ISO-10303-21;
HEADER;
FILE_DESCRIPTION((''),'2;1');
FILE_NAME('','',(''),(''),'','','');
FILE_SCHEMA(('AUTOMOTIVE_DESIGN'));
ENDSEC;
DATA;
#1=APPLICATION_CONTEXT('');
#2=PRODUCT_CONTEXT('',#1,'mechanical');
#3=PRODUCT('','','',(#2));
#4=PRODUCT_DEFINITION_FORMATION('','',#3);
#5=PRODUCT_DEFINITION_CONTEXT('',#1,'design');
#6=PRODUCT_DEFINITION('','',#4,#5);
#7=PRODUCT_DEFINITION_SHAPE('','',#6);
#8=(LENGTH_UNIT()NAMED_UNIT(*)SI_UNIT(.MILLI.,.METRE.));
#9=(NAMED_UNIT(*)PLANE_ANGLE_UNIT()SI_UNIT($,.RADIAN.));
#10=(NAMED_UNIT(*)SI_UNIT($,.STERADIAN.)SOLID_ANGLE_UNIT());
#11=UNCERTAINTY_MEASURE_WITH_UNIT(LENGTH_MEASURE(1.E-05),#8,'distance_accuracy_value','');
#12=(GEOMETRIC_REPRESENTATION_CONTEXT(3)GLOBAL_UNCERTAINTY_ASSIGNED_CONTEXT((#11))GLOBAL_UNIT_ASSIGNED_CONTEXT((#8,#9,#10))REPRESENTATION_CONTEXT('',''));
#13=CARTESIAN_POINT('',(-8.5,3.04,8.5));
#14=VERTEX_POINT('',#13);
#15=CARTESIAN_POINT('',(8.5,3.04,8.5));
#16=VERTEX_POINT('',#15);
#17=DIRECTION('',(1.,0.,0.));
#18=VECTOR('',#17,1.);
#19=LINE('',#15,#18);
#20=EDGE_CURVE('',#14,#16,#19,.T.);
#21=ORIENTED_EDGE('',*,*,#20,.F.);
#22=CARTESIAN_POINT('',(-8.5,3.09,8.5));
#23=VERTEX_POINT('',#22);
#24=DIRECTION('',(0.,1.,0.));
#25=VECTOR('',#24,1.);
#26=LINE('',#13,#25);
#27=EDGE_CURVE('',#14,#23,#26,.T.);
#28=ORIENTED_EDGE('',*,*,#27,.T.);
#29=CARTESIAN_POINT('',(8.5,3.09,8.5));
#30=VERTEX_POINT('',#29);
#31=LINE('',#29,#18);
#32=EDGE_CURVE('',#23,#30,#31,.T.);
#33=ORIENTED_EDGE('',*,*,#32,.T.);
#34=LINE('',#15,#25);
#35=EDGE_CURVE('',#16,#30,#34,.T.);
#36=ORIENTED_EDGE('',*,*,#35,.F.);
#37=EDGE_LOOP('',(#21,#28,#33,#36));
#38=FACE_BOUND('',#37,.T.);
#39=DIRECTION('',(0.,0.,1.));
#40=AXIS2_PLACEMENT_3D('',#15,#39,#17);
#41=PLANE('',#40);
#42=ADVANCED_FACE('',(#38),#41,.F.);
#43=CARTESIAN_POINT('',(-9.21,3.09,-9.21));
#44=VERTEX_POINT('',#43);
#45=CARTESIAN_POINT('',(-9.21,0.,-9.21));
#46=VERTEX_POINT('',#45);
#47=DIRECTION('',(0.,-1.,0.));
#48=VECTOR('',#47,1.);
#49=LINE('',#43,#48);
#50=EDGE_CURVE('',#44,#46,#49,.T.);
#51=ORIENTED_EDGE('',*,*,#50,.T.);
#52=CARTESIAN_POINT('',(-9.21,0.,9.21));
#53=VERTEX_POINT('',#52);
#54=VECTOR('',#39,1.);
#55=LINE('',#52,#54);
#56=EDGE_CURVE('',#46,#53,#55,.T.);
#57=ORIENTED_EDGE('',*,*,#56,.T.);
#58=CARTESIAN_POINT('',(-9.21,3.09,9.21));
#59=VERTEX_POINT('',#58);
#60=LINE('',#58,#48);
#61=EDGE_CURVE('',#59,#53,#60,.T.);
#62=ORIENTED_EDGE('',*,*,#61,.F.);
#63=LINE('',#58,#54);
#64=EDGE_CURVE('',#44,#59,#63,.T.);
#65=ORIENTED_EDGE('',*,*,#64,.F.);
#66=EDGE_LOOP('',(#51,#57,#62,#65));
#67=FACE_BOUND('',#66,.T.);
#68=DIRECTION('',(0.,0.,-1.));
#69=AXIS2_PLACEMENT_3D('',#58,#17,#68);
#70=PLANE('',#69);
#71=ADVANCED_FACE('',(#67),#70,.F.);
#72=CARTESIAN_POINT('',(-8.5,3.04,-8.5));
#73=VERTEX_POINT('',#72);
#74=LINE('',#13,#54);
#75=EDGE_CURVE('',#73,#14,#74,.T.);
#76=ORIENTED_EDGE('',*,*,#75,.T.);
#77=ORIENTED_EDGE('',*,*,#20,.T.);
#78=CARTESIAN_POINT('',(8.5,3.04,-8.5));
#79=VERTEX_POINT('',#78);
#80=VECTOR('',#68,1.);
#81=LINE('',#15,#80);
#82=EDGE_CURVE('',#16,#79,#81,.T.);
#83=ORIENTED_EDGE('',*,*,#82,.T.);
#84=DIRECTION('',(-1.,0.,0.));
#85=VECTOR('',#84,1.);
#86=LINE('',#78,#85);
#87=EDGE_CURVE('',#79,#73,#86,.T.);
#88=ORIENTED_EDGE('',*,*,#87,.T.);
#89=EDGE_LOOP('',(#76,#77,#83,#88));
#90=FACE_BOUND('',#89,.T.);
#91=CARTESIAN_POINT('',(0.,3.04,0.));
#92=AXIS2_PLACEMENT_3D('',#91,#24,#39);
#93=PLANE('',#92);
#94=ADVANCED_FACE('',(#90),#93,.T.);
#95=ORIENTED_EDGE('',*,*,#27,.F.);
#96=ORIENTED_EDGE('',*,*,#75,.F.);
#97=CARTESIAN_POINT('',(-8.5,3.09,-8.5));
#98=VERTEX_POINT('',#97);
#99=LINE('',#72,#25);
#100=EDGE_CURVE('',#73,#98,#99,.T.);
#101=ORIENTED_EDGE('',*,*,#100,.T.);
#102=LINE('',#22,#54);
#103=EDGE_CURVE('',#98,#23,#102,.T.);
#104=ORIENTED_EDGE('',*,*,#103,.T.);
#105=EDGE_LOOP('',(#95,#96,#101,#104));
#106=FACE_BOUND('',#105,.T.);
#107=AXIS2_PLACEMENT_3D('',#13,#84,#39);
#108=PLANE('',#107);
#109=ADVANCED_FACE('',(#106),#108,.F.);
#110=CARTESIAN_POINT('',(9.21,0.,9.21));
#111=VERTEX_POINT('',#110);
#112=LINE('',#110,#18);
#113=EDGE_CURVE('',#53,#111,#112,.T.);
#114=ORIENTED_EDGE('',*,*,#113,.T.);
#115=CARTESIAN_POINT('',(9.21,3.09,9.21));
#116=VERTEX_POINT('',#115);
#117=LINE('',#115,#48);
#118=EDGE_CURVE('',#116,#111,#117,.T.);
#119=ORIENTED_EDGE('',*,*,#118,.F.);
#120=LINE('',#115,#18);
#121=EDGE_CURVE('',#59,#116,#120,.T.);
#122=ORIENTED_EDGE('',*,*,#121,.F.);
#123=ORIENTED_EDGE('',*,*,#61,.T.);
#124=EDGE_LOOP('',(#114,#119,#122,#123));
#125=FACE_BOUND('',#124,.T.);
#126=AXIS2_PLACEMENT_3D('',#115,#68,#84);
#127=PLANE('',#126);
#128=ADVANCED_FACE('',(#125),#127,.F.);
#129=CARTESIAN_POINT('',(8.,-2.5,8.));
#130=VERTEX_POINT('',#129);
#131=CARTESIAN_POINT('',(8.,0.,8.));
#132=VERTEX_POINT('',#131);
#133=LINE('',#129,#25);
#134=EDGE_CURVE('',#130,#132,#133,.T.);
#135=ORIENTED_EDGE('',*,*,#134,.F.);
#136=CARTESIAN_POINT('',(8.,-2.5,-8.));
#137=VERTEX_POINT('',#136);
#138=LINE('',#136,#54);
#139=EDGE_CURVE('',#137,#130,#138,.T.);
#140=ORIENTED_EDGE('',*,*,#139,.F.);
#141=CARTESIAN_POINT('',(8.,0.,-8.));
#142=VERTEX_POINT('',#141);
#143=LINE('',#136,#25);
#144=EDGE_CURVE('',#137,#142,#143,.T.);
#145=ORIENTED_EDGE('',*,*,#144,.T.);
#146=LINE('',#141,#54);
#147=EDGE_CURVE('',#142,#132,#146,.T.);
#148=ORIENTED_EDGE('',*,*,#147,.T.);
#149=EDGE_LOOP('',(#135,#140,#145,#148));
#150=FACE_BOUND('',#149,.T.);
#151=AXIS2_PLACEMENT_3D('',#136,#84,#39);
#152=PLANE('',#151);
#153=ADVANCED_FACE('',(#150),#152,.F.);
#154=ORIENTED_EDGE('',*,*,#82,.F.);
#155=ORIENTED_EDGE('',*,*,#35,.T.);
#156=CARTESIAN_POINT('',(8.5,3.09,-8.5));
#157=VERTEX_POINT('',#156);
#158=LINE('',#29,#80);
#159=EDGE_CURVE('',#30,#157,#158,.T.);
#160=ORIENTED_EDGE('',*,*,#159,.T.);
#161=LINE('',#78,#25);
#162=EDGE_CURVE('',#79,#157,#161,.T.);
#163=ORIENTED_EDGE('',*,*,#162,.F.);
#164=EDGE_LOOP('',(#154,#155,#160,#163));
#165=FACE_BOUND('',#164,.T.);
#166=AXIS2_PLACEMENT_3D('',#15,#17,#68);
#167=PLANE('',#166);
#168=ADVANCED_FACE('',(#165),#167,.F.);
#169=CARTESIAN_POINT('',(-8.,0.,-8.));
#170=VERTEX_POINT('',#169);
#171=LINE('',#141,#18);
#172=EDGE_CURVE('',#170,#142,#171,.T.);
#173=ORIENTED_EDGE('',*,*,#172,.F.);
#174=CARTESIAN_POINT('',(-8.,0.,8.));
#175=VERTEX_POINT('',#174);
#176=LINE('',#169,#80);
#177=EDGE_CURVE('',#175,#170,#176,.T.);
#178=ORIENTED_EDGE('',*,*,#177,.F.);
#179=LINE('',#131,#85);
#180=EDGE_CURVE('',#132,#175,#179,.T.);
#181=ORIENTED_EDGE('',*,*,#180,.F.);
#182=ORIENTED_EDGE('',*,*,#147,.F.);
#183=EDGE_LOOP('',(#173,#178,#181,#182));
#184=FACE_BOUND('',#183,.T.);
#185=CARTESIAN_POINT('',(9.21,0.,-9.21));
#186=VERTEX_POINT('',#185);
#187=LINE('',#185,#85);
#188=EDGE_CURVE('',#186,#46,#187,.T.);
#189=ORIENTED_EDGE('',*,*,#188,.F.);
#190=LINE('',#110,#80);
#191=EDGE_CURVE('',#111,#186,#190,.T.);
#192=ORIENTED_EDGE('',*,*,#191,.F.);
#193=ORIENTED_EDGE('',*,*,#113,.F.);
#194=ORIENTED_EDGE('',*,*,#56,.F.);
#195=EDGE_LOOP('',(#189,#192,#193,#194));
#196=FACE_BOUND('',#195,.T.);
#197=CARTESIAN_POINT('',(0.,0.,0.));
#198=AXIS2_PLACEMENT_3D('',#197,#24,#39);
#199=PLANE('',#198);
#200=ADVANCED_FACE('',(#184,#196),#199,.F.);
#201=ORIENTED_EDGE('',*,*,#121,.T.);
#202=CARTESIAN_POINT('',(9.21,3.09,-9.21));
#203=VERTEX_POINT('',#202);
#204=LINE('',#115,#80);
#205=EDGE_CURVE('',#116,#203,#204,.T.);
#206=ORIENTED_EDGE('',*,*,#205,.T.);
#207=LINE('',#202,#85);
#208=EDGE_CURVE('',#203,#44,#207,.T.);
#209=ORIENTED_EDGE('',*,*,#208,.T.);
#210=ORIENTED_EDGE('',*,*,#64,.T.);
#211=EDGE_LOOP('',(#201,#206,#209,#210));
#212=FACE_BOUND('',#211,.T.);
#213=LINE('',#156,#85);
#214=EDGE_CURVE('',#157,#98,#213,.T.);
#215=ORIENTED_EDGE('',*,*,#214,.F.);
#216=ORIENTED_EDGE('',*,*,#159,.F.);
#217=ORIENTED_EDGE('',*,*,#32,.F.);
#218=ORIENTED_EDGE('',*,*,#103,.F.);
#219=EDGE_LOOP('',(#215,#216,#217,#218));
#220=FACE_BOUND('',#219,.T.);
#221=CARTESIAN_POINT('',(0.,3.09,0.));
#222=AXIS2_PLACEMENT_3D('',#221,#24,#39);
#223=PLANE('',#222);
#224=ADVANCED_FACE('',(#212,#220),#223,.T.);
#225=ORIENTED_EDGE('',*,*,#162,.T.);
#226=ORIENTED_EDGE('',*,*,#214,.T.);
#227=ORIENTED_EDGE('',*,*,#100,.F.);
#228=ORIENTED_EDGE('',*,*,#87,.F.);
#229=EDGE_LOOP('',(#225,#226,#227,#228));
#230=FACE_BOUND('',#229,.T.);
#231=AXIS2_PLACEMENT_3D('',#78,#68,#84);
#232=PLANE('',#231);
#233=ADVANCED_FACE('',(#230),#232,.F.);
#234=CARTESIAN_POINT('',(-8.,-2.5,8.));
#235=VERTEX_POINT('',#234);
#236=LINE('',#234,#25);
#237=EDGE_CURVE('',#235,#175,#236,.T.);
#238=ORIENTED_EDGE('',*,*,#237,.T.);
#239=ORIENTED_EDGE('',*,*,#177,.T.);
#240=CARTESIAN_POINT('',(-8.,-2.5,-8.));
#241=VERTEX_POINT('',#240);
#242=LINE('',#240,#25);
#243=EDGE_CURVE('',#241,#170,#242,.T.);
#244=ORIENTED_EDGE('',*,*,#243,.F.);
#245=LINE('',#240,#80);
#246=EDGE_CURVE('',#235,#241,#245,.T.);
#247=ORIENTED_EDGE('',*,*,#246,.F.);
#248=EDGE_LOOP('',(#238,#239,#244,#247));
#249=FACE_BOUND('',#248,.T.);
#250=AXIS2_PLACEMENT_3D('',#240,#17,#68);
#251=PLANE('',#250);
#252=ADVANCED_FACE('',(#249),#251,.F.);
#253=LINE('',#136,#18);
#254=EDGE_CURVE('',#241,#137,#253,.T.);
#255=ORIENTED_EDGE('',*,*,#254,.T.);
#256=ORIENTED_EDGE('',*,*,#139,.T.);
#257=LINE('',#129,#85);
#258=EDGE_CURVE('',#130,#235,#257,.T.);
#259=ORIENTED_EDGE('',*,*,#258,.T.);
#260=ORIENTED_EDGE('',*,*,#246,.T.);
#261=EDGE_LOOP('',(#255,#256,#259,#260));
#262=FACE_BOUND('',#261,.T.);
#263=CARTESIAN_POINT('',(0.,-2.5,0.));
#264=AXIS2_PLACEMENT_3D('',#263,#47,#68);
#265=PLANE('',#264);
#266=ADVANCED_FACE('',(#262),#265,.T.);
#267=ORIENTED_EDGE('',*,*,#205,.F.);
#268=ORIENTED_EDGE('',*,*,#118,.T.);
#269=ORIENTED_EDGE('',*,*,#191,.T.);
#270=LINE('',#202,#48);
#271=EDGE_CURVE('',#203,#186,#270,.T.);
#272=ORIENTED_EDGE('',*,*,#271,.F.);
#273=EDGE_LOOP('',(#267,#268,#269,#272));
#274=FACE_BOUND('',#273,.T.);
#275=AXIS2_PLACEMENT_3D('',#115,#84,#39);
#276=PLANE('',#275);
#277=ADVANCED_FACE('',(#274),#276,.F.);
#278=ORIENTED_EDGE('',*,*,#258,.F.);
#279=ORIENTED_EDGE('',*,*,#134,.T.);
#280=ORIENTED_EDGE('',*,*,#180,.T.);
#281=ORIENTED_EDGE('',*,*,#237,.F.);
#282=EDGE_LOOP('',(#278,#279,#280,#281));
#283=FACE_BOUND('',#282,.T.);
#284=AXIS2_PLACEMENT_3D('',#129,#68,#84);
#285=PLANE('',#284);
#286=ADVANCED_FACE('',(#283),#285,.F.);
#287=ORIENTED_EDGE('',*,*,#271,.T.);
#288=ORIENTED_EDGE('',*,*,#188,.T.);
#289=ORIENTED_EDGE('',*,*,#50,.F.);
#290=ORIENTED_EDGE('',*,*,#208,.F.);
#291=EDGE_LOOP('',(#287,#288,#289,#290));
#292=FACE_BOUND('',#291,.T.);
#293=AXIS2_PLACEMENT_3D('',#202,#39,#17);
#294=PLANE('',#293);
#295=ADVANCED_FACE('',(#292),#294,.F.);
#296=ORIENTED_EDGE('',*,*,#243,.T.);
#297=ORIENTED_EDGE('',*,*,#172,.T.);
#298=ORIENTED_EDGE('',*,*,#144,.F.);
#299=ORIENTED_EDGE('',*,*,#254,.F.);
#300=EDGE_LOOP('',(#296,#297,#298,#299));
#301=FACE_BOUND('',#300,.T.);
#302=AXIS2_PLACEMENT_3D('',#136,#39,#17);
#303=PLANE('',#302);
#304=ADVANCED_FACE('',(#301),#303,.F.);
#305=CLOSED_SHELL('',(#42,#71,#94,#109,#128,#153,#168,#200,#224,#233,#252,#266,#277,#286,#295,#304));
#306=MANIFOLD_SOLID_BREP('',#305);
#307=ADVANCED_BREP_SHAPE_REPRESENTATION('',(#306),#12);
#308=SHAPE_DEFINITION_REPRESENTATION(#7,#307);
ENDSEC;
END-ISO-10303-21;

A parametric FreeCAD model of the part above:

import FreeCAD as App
import Part
import Sketcher

V = App.Vector

doc = App.newDocument("Part")
body = doc.addObject("PartDesign::Body", "Body")

sketch1 = doc.addObject("Sketcher::SketchObject", "Sketch")
body.addObject(sketch1)
sketch1.AttachmentSupport = (doc.XZ_Plane, [""])
sketch1.MapMode = "FlatFace"
sketch1.addGeometry([
    Part.LineSegment(V(-9, -9, 0), V(-9, 9, 0)),
    Part.LineSegment(V(-9, 9, 0), V(9, 9, 0)),
    Part.LineSegment(V(9, 9, 0), V(9, -9, 0)),
    Part.LineSegment(V(9, -9, 0), V(-9, -9, 0)),
], False)
sketch1.addConstraint([
    Sketcher.Constraint("Coincident", 0, 2, 1, 1),
    Sketcher.Constraint("Coincident", 1, 2, 2, 1),
    Sketcher.Constraint("Coincident", 2, 2, 3, 1),
    Sketcher.Constraint("Coincident", 3, 2, 0, 1),
    Sketcher.Constraint("Vertical", 0),
    Sketcher.Constraint("Horizontal", 1),
    Sketcher.Constraint("Vertical", 2),
    Sketcher.Constraint("Horizontal", 3),
    Sketcher.Constraint("Symmetric", 0, 2, 2, 2, -1, 1),
    Sketcher.Constraint("Equal", 3, 0),
    Sketcher.Constraint("DistanceX", 1, 1, 1, 2, 18.42),
])
pad1 = doc.addObject("PartDesign::Pad", "Pad")
body.addObject(pad1)
pad1.Profile = sketch1
pad1.Length = 3.09
pad1.Reversed = True

sketch2 = doc.addObject("Sketcher::SketchObject", "Sketch001")
body.addObject(sketch2)
sketch2.AttachmentSupport = (doc.XZ_Plane, [""])
sketch2.MapMode = "FlatFace"
sketch2.addGeometry([
    Part.LineSegment(V(-8, 8, 0), V(-8, -8, 0)),
    Part.LineSegment(V(-8, -8, 0), V(8, -8, 0)),
    Part.LineSegment(V(8, -8, 0), V(8, 8, 0)),
    Part.LineSegment(V(8, 8, 0), V(-8, 8, 0)),
], False)
sketch2.addConstraint([
    Sketcher.Constraint("Coincident", 0, 2, 1, 1),
    Sketcher.Constraint("Coincident", 1, 2, 2, 1),
    Sketcher.Constraint("Coincident", 2, 2, 3, 1),
    Sketcher.Constraint("Coincident", 3, 2, 0, 1),
    Sketcher.Constraint("Vertical", 0),
    Sketcher.Constraint("Horizontal", 1),
    Sketcher.Constraint("Vertical", 2),
    Sketcher.Constraint("Horizontal", 3),
    Sketcher.Constraint("Symmetric", 0, 2, 2, 2, -1, 1),
    Sketcher.Constraint("Equal", 3, 0),
    Sketcher.Constraint("DistanceX", 1, 1, 1, 2, 16.0),
])
pad2 = doc.addObject("PartDesign::Pad", "Pad001")
body.addObject(pad2)
pad2.Profile = sketch2
pad2.Length = 2.5

sketch3 = doc.addObject("Sketcher::SketchObject", "Sketch002")
body.addObject(sketch3)
sketch3.AttachmentSupport = (doc.XZ_Plane, [""])
sketch3.MapMode = "FlatFace"
sketch3.AttachmentOffset = App.Placement(V(0, 0, -3.09), App.Rotation())
sketch3.addGeometry([
    Part.LineSegment(V(-8, -8, 0), V(-8, 8, 0)),
    Part.LineSegment(V(-8, 8, 0), V(8, 8, 0)),
    Part.LineSegment(V(8, 8, 0), V(8, -8, 0)),
    Part.LineSegment(V(8, -8, 0), V(-8, -8, 0)),
], False)
sketch3.addConstraint([
    Sketcher.Constraint("Coincident", 0, 2, 1, 1),
    Sketcher.Constraint("Coincident", 1, 2, 2, 1),
    Sketcher.Constraint("Coincident", 2, 2, 3, 1),
    Sketcher.Constraint("Coincident", 3, 2, 0, 1),
    Sketcher.Constraint("Vertical", 0),
    Sketcher.Constraint("Horizontal", 1),
    Sketcher.Constraint("Vertical", 2),
    Sketcher.Constraint("Horizontal", 3),
    Sketcher.Constraint("Symmetric", 0, 2, 2, 2, -1, 1),
    Sketcher.Constraint("Equal", 3, 0),
    Sketcher.Constraint("DistanceX", 1, 1, 1, 2, 17.0),
])
pocket1 = doc.addObject("PartDesign::Pocket", "Pocket")
body.addObject(pocket1)
pocket1.Profile = sketch3
pocket1.Length = 0.05
pocket1.Reversed = True

doc.recompute()
